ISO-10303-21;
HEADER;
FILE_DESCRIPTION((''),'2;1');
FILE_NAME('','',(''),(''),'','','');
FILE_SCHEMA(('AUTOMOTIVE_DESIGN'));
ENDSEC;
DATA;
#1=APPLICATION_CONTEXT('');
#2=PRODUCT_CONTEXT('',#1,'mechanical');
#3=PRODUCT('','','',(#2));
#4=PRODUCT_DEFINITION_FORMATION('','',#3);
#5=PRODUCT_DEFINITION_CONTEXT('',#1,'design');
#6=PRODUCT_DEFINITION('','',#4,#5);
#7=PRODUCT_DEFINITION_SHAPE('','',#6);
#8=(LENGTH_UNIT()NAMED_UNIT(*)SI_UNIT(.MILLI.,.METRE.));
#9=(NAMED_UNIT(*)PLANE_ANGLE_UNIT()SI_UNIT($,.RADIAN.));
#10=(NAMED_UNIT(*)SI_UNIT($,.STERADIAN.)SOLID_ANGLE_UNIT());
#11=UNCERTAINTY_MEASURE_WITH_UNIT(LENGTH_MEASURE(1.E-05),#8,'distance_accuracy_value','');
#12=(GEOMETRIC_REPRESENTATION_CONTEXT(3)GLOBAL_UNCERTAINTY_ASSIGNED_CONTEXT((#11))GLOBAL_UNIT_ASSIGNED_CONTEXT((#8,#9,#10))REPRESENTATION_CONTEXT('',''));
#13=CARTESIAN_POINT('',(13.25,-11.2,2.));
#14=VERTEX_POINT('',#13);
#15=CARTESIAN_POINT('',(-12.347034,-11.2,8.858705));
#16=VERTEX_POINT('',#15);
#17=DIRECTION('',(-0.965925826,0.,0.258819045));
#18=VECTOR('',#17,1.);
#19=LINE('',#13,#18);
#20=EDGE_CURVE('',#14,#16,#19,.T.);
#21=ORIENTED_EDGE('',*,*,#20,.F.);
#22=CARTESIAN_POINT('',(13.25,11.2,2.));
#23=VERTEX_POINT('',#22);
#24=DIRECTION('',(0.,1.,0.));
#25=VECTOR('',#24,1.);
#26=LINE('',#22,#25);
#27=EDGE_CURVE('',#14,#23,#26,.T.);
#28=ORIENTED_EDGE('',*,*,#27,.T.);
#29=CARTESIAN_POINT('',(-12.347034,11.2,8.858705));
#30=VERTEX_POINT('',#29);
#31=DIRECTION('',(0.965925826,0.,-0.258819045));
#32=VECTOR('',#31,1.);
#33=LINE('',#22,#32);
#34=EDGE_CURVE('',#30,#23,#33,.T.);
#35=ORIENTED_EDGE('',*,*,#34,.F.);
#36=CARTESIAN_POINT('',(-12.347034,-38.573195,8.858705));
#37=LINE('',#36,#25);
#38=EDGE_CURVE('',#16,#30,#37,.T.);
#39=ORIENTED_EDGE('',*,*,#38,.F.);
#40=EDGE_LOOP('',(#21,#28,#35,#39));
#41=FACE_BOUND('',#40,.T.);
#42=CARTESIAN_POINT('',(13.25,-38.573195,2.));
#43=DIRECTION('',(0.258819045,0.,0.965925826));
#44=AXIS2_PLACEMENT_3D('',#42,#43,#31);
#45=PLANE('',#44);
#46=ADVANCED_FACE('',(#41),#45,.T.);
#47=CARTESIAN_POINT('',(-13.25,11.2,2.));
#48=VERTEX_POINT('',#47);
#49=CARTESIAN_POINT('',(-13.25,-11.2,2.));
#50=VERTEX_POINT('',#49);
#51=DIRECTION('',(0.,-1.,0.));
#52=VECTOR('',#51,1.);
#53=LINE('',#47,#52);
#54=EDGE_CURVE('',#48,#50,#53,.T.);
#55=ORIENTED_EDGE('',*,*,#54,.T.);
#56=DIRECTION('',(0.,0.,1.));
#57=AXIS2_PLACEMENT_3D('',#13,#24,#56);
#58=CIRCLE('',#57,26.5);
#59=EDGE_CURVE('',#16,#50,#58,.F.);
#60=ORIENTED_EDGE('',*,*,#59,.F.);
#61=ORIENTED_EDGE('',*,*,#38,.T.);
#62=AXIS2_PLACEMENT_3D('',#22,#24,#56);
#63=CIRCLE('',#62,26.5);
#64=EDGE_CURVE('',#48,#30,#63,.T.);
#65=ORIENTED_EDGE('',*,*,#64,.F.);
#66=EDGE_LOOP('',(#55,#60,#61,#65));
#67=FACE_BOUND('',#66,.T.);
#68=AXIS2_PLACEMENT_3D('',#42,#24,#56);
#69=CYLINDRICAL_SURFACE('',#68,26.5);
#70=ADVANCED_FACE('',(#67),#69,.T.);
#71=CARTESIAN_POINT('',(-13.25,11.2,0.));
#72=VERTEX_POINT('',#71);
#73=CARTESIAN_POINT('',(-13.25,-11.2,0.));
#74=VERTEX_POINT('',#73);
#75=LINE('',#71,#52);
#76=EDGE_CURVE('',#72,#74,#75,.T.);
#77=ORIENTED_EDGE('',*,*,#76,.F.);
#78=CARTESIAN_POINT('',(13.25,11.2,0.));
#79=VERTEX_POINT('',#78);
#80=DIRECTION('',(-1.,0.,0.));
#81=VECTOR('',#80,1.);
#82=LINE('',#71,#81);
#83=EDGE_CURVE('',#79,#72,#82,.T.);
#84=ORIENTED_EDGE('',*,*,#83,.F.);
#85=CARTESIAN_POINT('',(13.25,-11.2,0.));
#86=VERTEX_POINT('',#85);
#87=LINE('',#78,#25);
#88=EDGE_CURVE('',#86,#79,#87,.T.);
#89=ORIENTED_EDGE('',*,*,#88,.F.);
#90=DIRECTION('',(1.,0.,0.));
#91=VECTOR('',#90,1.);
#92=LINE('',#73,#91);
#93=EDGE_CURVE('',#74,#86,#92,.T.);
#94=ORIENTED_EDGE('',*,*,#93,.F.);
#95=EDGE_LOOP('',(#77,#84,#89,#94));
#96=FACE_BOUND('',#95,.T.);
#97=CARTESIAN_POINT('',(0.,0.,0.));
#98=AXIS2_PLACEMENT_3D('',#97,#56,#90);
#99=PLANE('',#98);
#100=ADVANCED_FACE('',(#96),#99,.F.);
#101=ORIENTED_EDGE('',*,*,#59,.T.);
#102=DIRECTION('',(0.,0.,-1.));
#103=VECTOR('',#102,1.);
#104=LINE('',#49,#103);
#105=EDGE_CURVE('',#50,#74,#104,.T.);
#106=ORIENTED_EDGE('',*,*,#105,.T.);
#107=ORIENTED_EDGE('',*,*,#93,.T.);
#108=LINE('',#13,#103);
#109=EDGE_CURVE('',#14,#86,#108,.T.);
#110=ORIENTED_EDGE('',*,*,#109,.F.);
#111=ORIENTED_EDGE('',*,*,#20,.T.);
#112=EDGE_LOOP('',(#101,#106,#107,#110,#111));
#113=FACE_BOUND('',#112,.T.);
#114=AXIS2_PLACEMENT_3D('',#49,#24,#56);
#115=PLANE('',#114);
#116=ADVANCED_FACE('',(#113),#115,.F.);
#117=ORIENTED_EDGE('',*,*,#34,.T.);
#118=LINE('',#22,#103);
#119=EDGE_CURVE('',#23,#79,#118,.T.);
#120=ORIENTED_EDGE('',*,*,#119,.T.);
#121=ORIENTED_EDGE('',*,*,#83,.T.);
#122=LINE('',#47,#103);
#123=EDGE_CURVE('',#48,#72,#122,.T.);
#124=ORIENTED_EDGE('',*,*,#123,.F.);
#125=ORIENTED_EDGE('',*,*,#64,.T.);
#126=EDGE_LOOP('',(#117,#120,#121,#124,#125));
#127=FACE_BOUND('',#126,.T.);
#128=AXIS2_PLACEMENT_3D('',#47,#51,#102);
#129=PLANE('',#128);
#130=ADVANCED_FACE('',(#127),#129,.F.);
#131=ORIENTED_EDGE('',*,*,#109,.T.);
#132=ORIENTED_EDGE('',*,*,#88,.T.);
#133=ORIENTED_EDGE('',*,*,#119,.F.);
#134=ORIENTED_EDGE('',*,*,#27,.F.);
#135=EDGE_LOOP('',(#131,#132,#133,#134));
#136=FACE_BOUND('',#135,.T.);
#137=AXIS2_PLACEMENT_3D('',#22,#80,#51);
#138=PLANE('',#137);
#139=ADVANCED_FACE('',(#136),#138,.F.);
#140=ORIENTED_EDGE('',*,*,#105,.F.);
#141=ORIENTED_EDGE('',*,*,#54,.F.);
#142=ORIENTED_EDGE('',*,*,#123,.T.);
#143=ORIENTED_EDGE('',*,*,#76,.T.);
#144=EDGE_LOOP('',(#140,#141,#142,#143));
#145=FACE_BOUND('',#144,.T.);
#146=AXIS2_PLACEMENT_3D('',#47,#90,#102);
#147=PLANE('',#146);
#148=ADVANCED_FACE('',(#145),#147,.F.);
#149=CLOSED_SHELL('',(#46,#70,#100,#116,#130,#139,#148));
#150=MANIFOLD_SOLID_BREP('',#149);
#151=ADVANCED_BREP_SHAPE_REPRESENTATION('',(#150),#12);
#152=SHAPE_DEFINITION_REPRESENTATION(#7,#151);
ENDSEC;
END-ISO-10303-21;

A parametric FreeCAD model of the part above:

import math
import FreeCAD as App
import Part
import Sketcher

V = App.Vector
Q = App.Units.Quantity

doc = App.newDocument("Part")
body = doc.addObject("PartDesign::Body", "Body")

# Sketch on XY plane
sketch1 = body.newObject("Sketcher::SketchObject", "Sketch")
sketch1.AttachmentSupport = (doc.getObject("XY_Plane"), [""])
sketch1.MapMode = "FlatFace"
sketch1.addGeometry([
    Part.LineSegment(V(-13, 11, 0), V(-13, -11, 0)),
    Part.LineSegment(V(-13, -11, 0), V(13, -11, 0)),
    Part.LineSegment(V(13, -11, 0), V(13, 11, 0)),
    Part.LineSegment(V(13, 11, 0), V(-13, 11, 0)),
], False)
sketch1.addConstraint([
    Sketcher.Constraint("Coincident", 0, 2, 1, 1),
    Sketcher.Constraint("Coincident", 1, 2, 2, 1),
    Sketcher.Constraint("Coincident", 2, 2, 3, 1),
    Sketcher.Constraint("Coincident", 3, 2, 0, 1),
    Sketcher.Constraint("Vertical", 0),
    Sketcher.Constraint("Horizontal", 1),
    Sketcher.Constraint("Vertical", 2),
    Sketcher.Constraint("Horizontal", 3),
    Sketcher.Constraint("Symmetric", 0, 2, 2, 2, -1, 1),
    Sketcher.Constraint("DistanceX", 1, 1, 1, 2, 26.5),
    Sketcher.Constraint("DistanceY", 0, 2, 0, 1, 22.4),
])
pad1 = body.newObject("PartDesign::Pad", "Pad")
pad1.Profile = sketch1
pad1.Length = 2

# Sketch on XZ plane
sketch2 = body.newObject("Sketcher::SketchObject", "Sketch001")
sketch2.AttachmentSupport = (doc.getObject("XZ_Plane"), [""])
sketch2.MapMode = "FlatFace"
sketch2.AttachmentOffset = App.Placement(V(0, 0, -11.2), App.Rotation())
sketch2.addGeometry([
    Part.LineSegment(V(-12, 9, 0), V(13, 2, 0)),
    Part.LineSegment(V(13, 2, 0), V(-13, 2, 0)),
    Part.ArcOfCircle(Part.Circle(V(13, 2, 0), V(0, 0, 1), 27), math.radians(165), math.radians(180)),
], False)
sketch2.addConstraint([
    Sketcher.Constraint("Coincident", 0, 2, 1, 1),
    Sketcher.Constraint("Coincident", 1, 2, 2, 2),
    Sketcher.Constraint("Coincident", 2, 1, 0, 1),
    Sketcher.Constraint("Horizontal", 1),
    Sketcher.Constraint("Coincident", 0, 2, 2, 3),
    Sketcher.Constraint("Radius", 2, 26.5),
    Sketcher.Constraint("Angle", 0, Q("-15 deg")),
    Sketcher.Constraint("DistanceY", -1, 1, 2, 3, 2.0),
    Sketcher.Constraint("DistanceX", -1, 1, 2, 3, 13.25),
])
pad2 = body.newObject("PartDesign::Pad", "Pad001")
pad2.Profile = sketch2
pad2.Length = 22.4

doc.recompute()
